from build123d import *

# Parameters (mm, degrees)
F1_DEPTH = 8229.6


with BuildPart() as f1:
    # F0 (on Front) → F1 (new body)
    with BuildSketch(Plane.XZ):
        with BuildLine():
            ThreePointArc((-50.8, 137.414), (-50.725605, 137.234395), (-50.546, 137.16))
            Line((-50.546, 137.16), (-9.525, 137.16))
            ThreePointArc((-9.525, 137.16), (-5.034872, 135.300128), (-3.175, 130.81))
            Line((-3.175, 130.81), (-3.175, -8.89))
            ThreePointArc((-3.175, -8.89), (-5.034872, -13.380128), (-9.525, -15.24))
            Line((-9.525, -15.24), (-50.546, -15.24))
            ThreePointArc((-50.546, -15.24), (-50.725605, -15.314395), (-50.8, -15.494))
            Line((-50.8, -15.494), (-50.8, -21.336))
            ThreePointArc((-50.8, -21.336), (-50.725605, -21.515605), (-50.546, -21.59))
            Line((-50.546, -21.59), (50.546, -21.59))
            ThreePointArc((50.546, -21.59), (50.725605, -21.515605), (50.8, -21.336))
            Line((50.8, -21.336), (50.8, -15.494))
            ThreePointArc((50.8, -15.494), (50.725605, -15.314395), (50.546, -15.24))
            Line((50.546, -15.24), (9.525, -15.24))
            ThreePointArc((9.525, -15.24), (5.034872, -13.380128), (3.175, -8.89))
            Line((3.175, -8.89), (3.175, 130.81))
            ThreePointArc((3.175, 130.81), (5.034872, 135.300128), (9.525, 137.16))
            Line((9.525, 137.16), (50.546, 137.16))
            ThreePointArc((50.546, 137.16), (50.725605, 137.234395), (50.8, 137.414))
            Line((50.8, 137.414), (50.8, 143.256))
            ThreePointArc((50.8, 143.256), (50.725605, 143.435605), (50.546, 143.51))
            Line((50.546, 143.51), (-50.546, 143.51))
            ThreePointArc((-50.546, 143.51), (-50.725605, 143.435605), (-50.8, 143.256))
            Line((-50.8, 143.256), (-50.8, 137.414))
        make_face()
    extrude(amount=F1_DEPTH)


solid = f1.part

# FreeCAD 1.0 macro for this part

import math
import FreeCAD as App
import Part
import Sketcher
from FreeCAD import Vector
Q = App.Units.Quantity

doc = App.newDocument("Part")
body = doc.addObject("PartDesign::Body", "Body")

sketch1 = body.newObject("Sketcher::SketchObject", "Sketch")
sketch1.AttachmentSupport = (doc.getObject("XZ_Plane"), [""])
sketch1.MapMode = "FlatFace"
sketch1.addGeometry([
    Part.ArcOfCircle(Part.Circle(Vector(-50.55, 137.41, 0), Vector(0, 0, 1), 0.25), math.radians(-180), math.radians(-90)),
    Part.LineSegment(Vector(-50.55, 137.16, 0), Vector(-9.53, 137.16, 0)),
    Part.ArcOfCircle(Part.Circle(Vector(-9.53, 130.81, 0), Vector(0, 0, 1), 6.35), math.radians(0), math.radians(90)),
    Part.LineSegment(Vector(-3.17, 130.81, 0), Vector(-3.17, -8.89, 0)),
    Part.ArcOfCircle(Part.Circle(Vector(-9.53, -8.89, 0), Vector(0, 0, 1), 6.35), math.radians(-90), math.radians(0)),
    Part.LineSegment(Vector(-9.53, -15.24, 0), Vector(-50.55, -15.24, 0)),
    Part.ArcOfCircle(Part.Circle(Vector(-50.55, -15.49, 0), Vector(0, 0, 1), 0.25), math.radians(90), math.radians(180)),
    Part.LineSegment(Vector(-50.8, -15.49, 0), Vector(-50.8, -21.34, 0)),
    Part.ArcOfCircle(Part.Circle(Vector(-50.55, -21.34, 0), Vector(0, 0, 1), 0.25), math.radians(-180), math.radians(-90)),
    Part.LineSegment(Vector(-50.55, -21.59, 0), Vector(50.55, -21.59, 0)),
    Part.ArcOfCircle(Part.Circle(Vector(50.55, -21.34, 0), Vector(0, 0, 1), 0.25), math.radians(-90), math.radians(0)),
    Part.LineSegment(Vector(50.8, -21.34, 0), Vector(50.8, -15.49, 0)),
    Part.ArcOfCircle(Part.Circle(Vector(50.55, -15.49, 0), Vector(0, 0, 1), 0.25), math.radians(0), math.radians(90)),
    Part.LineSegment(Vector(50.55, -15.24, 0), Vector(9.53, -15.24, 0)),
    Part.ArcOfCircle(Part.Circle(Vector(9.53, -8.89, 0), Vector(0, 0, 1), 6.35), math.radians(-180), math.radians(-90)),
    Part.LineSegment(Vector(3.17, -8.89, 0), Vector(3.17, 130.81, 0)),
    Part.ArcOfCircle(Part.Circle(Vector(9.53, 130.81, 0), Vector(0, 0, 1), 6.35), math.radians(90), math.radians(180)),
    Part.LineSegment(Vector(9.53, 137.16, 0), Vector(50.55, 137.16, 0)),
    Part.ArcOfCircle(Part.Circle(Vector(50.55, 137.41, 0), Vector(0, 0, 1), 0.25), math.radians(-90), math.radians(0)),
    Part.LineSegment(Vector(50.8, 137.41, 0), Vector(50.8, 143.26, 0)),
    Part.ArcOfCircle(Part.Circle(Vector(50.55, 143.26, 0), Vector(0, 0, 1), 0.25), math.radians(0), math.radians(90)),
    Part.LineSegment(Vector(50.55, 143.51, 0), Vector(-50.55, 143.51, 0)),
    Part.ArcOfCircle(Part.Circle(Vector(-50.55, 143.26, 0), Vector(0, 0, 1), 0.25), math.radians(90), math.radians(180)),
    Part.LineSegment(Vector(-50.8, 143.26, 0), Vector(-50.8, 137.41, 0)),
], False)
sketch1.addConstraint([
    Sketcher.Constraint("Tangent", 0, 2, 1, 1),
    Sketcher.Constraint("Tangent", 1, 2, 2, 2),
    Sketcher.Constraint("Tangent", 2, 1, 3, 1),
    Sketcher.Constraint("Tangent", 3, 2, 4, 2),
    Sketcher.Constraint("Tangent", 4, 1, 5, 1),
    Sketcher.Constraint("Tangent", 5, 2, 6, 1),
    Sketcher.Constraint("Tangent", 6, 2, 7, 1),
    Sketcher.Constraint("Tangent", 7, 2, 8, 1),
    Sketcher.Constraint("Tangent", 8, 2, 9, 1),
    Sketcher.Constraint("Tangent", 9, 2, 10, 1),
    Sketcher.Constraint("Tangent", 10, 2, 11, 1),
    Sketcher.Constraint("Tangent", 11, 2, 12, 1),
    Sketcher.Constraint("Tangent", 12, 2, 13, 1),
    Sketcher.Constraint("Tangent", 13, 2, 14, 2),
    Sketcher.Constraint("Tangent", 14, 1, 15, 1),
    Sketcher.Constraint("Tangent", 15, 2, 16, 2),
    Sketcher.Constraint("Tangent", 16, 1, 17, 1),
    Sketcher.Constraint("Tangent", 17, 2, 18, 1),
    Sketcher.Constraint("Tangent", 18, 2, 19, 1),
    Sketcher.Constraint("Tangent", 19, 2, 20, 1),
    Sketcher.Constraint("Tangent", 20, 2, 21, 1),
    Sketcher.Constraint("Tangent", 21, 2, 22, 1),
    Sketcher.Constraint("Tangent", 22, 2, 23, 1),
    Sketcher.Constraint("Tangent", 23, 2, 0, 1),
    Sketcher.Constraint("Horizontal", 1),
    Sketcher.Constraint("Vertical", 3),
    Sketcher.Constraint("Horizontal", 5),
    Sketcher.Constraint("Vertical", 7),
    Sketcher.Constraint("Horizontal", 9),
    Sketcher.Constraint("Vertical", 11),
    Sketcher.Constraint("Horizontal", 13),
    Sketcher.Constraint("Vertical", 15),
    Sketcher.Constraint("Horizontal", 17),
    Sketcher.Constraint("Vertical", 19),
    Sketcher.Constraint("Horizontal", 21),
    Sketcher.Constraint("Vertical", 23),
    Sketcher.Constraint("Equal", 2, 4),
    Sketcher.Constraint("Equal", 0, 6),
    Sketcher.Constraint("Equal", 6, 8),
    Sketcher.Constraint("Equal", 8, 10),
    Sketcher.Constraint("Equal", 10, 12),
    Sketcher.Constraint("Equal", 4, 14),
    Sketcher.Constraint("Equal", 14, 16),
    Sketcher.Constraint("Equal", 12, 18),
    Sketcher.Constraint("Equal", 18, 20),
    Sketcher.Constraint("Equal", 20, 22),
    Sketcher.Constraint("Symmetric", 6, 3, 12, 3, -2),
    Sketcher.Constraint("Symmetric", 2, 3, 16, 3, -2),
    Sketcher.Constraint("Vertical", 0, 3, 6, 3),
    Sketcher.Constraint("Vertical", 12, 3, 18, 3),
    Sketcher.Constraint("Equal", 11, 19),
    Sketcher.Constraint("Radius", 0, Q("0.01 in")),
    Sketcher.Constraint("Radius", 2, Q("0.25 in")),
    Sketcher.Constraint("DistanceY", 3, 2, 3, 1, Q("5.5 in")),
    Sketcher.Constraint("DistanceX", 6, 2, -1, 1, Q("2 in")),
    Sketcher.Constraint("DistanceY", 7, 2, 7, 1, Q("0.23 in")),
    Sketcher.Constraint("DistanceY", -1, 1, 0, 2, Q("5.4 in")),
    Sketcher.Constraint("DistanceX", 2, 1, 16, 3, Q("0.5 in")),
])
pad1 = body.newObject("PartDesign::Pad", "Pad")
pad1.Profile = sketch1
pad1.Length = Q("324 in")

doc.recompute()
